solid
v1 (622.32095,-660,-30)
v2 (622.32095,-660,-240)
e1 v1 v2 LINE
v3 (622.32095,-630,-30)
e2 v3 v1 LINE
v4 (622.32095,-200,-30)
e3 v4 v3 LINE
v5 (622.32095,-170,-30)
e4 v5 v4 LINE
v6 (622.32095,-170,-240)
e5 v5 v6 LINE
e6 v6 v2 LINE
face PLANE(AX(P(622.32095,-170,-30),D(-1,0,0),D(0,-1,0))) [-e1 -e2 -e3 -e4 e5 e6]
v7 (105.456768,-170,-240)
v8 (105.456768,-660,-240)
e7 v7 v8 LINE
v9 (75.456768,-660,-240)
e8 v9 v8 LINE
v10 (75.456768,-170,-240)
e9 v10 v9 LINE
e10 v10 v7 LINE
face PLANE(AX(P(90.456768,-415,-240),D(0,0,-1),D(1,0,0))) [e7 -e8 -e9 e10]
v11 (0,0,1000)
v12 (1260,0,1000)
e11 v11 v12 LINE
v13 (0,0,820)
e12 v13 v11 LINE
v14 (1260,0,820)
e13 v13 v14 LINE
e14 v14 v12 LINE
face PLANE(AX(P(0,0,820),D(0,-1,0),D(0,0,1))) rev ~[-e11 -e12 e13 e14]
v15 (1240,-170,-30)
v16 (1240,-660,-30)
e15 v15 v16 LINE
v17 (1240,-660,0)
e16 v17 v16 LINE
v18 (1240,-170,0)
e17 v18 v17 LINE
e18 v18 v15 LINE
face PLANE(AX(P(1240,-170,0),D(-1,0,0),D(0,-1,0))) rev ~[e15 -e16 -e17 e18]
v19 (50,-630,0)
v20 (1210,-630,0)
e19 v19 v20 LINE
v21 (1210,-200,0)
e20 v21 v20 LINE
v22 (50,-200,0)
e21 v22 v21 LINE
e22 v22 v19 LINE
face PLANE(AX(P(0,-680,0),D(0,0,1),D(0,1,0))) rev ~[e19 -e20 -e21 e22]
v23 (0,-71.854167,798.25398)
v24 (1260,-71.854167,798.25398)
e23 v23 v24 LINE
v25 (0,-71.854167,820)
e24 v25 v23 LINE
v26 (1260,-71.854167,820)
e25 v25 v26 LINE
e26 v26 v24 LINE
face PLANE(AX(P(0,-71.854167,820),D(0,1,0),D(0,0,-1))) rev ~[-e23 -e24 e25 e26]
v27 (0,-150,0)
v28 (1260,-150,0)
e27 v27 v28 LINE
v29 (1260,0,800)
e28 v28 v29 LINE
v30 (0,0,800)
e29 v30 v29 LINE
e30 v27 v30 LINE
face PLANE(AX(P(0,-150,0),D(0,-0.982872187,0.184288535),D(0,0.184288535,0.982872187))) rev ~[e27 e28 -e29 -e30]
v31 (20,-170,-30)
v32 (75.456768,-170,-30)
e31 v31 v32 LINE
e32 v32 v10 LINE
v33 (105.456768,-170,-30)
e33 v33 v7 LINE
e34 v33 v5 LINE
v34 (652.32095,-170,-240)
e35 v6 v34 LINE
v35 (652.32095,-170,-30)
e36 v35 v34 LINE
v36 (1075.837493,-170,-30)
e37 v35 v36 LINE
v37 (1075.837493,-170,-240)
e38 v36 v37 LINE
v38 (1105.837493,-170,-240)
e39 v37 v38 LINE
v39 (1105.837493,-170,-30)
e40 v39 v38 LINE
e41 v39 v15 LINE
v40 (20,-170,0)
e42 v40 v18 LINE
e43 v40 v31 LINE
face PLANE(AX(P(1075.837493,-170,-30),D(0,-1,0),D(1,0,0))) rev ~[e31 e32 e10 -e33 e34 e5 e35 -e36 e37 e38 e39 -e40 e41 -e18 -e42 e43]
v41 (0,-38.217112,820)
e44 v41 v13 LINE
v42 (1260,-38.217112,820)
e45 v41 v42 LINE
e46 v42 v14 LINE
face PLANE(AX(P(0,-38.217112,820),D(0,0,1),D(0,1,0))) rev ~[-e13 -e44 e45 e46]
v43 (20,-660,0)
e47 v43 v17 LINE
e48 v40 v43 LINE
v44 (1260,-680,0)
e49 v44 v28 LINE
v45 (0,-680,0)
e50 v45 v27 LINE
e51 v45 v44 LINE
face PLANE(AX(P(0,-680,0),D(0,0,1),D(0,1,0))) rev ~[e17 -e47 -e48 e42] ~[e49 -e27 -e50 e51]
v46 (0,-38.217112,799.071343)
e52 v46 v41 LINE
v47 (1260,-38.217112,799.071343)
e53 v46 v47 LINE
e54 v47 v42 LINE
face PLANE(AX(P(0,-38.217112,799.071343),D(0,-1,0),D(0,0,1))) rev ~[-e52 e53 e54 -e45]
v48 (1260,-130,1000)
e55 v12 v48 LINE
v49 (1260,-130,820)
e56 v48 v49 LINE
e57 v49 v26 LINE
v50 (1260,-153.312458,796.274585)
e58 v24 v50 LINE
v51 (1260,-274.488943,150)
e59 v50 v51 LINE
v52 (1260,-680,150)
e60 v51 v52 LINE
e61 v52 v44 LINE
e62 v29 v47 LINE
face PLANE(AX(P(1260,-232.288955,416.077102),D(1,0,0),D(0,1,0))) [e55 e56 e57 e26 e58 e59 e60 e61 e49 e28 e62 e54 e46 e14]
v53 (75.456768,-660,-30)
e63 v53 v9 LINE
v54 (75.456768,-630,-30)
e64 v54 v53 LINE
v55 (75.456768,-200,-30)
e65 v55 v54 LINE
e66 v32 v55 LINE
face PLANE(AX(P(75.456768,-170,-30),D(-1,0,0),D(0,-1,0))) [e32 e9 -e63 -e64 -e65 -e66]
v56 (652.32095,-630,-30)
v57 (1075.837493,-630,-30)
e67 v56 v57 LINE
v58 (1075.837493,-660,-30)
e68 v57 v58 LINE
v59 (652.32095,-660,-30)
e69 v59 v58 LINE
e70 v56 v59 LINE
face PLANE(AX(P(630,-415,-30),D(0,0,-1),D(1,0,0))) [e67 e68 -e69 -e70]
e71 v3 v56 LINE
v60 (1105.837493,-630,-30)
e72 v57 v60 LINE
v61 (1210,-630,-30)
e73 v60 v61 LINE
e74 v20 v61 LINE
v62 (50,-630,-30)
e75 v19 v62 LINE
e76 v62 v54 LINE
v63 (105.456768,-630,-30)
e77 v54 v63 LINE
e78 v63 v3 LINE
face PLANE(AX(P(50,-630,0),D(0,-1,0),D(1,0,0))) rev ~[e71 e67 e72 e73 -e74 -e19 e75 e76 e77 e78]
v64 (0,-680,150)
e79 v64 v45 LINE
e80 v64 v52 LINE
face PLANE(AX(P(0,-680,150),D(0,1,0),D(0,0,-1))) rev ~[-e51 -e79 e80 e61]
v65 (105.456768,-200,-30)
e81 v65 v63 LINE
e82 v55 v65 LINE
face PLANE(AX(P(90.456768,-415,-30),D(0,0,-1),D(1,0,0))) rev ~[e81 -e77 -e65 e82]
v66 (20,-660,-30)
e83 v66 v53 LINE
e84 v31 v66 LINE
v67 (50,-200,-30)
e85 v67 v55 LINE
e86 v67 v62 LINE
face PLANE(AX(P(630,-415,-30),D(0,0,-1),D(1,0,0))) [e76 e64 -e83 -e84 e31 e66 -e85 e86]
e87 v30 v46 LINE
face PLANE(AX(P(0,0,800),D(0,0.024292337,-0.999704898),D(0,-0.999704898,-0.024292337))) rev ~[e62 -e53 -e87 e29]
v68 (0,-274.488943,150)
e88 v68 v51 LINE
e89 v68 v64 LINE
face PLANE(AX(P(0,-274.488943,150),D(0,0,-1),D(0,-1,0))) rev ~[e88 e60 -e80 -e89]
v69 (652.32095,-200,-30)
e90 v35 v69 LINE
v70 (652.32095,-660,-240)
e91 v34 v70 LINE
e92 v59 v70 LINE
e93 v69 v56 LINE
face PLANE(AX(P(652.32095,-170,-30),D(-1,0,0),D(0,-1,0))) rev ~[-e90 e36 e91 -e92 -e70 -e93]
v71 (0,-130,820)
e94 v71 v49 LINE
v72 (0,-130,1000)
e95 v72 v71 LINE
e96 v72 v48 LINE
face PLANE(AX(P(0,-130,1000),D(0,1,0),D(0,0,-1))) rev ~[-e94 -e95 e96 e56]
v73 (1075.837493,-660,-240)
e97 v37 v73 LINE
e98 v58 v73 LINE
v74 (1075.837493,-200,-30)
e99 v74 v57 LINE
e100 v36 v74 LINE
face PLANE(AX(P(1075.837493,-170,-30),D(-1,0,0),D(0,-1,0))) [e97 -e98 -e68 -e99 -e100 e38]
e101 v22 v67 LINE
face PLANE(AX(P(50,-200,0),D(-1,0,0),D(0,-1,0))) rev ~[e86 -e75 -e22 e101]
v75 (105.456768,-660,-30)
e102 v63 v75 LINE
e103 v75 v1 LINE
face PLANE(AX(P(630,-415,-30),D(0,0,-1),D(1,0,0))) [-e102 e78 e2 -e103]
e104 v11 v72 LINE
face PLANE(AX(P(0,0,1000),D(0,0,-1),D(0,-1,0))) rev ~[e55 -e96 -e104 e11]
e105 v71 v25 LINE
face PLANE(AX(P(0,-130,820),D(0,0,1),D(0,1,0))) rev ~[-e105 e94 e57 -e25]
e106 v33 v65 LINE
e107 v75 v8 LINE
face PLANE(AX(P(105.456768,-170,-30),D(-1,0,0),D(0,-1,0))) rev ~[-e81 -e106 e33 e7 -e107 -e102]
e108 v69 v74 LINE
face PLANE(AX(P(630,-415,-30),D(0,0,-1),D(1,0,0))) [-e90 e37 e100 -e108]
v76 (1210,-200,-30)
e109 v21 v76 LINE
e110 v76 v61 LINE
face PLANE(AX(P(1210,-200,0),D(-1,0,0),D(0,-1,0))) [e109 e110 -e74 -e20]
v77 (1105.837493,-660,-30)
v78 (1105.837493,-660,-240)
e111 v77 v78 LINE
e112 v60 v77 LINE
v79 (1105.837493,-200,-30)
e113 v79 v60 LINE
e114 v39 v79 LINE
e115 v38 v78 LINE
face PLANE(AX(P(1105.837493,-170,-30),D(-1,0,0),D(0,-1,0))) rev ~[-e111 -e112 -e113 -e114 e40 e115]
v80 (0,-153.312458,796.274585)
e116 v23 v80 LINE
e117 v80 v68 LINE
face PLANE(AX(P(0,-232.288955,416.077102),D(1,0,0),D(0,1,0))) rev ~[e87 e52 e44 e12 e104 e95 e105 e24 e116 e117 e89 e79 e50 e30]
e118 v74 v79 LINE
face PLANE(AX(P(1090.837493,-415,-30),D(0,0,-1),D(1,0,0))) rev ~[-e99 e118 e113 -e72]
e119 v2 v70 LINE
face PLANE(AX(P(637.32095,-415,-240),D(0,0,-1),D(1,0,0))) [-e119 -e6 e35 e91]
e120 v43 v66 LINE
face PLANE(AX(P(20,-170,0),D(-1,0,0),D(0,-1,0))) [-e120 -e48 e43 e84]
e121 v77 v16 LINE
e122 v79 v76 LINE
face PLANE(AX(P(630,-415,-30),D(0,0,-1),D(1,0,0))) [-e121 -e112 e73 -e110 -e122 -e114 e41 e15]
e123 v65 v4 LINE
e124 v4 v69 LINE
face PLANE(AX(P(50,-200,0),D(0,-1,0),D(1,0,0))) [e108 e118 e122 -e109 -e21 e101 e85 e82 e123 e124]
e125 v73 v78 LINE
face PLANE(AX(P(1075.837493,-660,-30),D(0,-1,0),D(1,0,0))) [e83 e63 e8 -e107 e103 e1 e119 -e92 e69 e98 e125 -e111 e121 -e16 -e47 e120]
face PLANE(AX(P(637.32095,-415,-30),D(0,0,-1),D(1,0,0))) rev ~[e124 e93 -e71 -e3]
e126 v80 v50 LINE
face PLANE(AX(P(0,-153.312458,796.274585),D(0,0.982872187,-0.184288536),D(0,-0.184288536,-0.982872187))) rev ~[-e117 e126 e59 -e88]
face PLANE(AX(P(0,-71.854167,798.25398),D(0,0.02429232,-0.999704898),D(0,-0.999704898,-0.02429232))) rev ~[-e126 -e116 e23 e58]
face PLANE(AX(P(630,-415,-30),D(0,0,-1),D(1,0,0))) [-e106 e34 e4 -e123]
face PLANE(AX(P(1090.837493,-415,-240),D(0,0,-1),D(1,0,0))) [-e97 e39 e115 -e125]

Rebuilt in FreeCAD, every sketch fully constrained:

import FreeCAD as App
import Part
import Sketcher


def add_polygon(sketch, points):
    """Adds a closed chain of lines whose ends are joined by coincident constraints."""
    first, n = sketch.GeometryCount, len(points)
    for a, b in zip(points, points[1:] + points[:1]):
        sketch.addGeometry(Part.LineSegment(App.Vector(*a, 0), App.Vector(*b, 0)), False)
    for i in range(n):
        sketch.addConstraint(Sketcher.Constraint("Coincident", first + i, 2, first + (i + 1) % n, 1))

doc = App.newDocument("Part")
body = doc.addObject("PartDesign::Body", "Body")

sketch1 = body.newObject("Sketcher::SketchObject", "Sketch")
sketch1.AttachmentSupport = (doc.getObject("YZ_Plane"), [""])
sketch1.MapMode = "FlatFace"
add_polygon(sketch1, [(-680, 0), (-150, 0), (0, 800), (-38, 799), (-38, 820), (0, 820), (0, 1000), (-130, 1000), (-130, 820), (-72, 820), (-72, 798), (-153, 796), (-274, 150), (-680, 150)])
sketch1.addConstraint([
    Sketcher.Constraint("Horizontal", 0),
    Sketcher.Constraint("Vertical", 3),
    Sketcher.Constraint("Horizontal", 4),
    Sketcher.Constraint("Vertical", 5),
    Sketcher.Constraint("Horizontal", 6),
    Sketcher.Constraint("Vertical", 7),
    Sketcher.Constraint("Horizontal", 8),
    Sketcher.Constraint("Vertical", 9),
    Sketcher.Constraint("Horizontal", 12),
    Sketcher.Constraint("Vertical", 13),
    Sketcher.Constraint("PointOnObject", 0, 2, -1),
    Sketcher.Constraint("PointOnObject", 1, 2, -2),
    Sketcher.Constraint("PointOnObject", 4, 2, -2),
    Sketcher.Constraint("Parallel", 2, 10),
    Sketcher.Constraint("Parallel", 1, 11),
    Sketcher.Constraint("Horizontal", 4, 2, 7, 2),
    Sketcher.Constraint("DistanceX", 0, 1, 0, 2, 530.0),
    Sketcher.Constraint("DistanceX", 6, 2, 6, 1, 130.0),
    Sketcher.Constraint("DistanceY", 5, 1, 5, 2, 180.0),
    Sketcher.Constraint("DistanceY", 13, 2, 13, 1, 150.0),
    Sketcher.Constraint("DistanceX", 0, 2, -1, 1, 150.0),
    Sketcher.Constraint("DistanceY", -1, 1, 1, 2, 800.0),
    Sketcher.Constraint("DistanceY", -1, 1, 3, 2, 820.0),
    Sketcher.Constraint("DistanceY", 9, 2, 9, 1, 21.74602),
    Sketcher.Constraint("Distance", 11, 657.536752),
    Sketcher.Constraint("DistanceX", 4, 1, 4, 2, 38.217112),
    Sketcher.Constraint("DistanceX", 8, 1, 8, 2, 58.145833),
    Sketcher.Constraint("DistanceX", 12, 2, 12, 1, 405.511057),
])
pad1 = body.newObject("PartDesign::Pad", "Pad")
pad1.Profile = sketch1
pad1.Length = 1260

sketch2 = body.newObject("Sketcher::SketchObject", "Sketch001")
sketch2.AttachmentSupport = (doc.getObject("XY_Plane"), [""])
sketch2.MapMode = "FlatFace"
add_polygon(sketch2, [(20, -660), (20, -170), (1240, -170), (1240, -660)])
add_polygon(sketch2, [(1210, -200), (50, -200), (50, -630), (1210, -630)])
sketch2.addConstraint([
    Sketcher.Constraint("Vertical", 0),
    Sketcher.Constraint("Horizontal", 1),
    Sketcher.Constraint("Vertical", 2),
    Sketcher.Constraint("Horizontal", 3),
    Sketcher.Constraint("Horizontal", 4),
    Sketcher.Constraint("Vertical", 5),
    Sketcher.Constraint("Horizontal", 6),
    Sketcher.Constraint("Vertical", 7),
    Sketcher.Constraint("DistanceX", 1, 1, 1, 2, 1220.0),
    Sketcher.Constraint("DistanceX", 4, 2, 4, 1, 1160.0),
    Sketcher.Constraint("DistanceY", 0, 1, 0, 2, 490.0),
    Sketcher.Constraint("DistanceY", 5, 2, 5, 1, 430.0),
    Sketcher.Constraint("DistanceX", -1, 1, 0, 2, 20.0),
    Sketcher.Constraint("DistanceY", 0, 2, -1, 1, 170.0),
    Sketcher.Constraint("DistanceX", -1, 1, 4, 2, 50.0),
    Sketcher.Constraint("DistanceY", 4, 2, -1, 1, 200.0),
])
pad2 = body.newObject("PartDesign::Pad", "Pad001")
pad2.Profile = sketch2
pad2.Length = 30
pad2.Reversed = True

sketch3 = body.newObject("Sketcher::SketchObject", "Sketch002")
sketch3.AttachmentSupport = (doc.getObject("XY_Plane"), [""])
sketch3.MapMode = "FlatFace"
sketch3.AttachmentOffset = App.Placement(App.Vector(0, 0, -30), App.Rotation())
add_polygon(sketch3, [(1076, -660), (1076, -170), (1106, -170), (1106, -660)])
add_polygon(sketch3, [(622, -660), (622, -170), (652, -170), (652, -660)])
add_polygon(sketch3, [(75, -660), (75, -170), (105, -170), (105, -660)])
sketch3.addConstraint([
    Sketcher.Constraint("Vertical", 0),
    Sketcher.Constraint("Horizontal", 1),
    Sketcher.Constraint("Vertical", 2),
    Sketcher.Constraint("Horizontal", 3),
    Sketcher.Constraint("Vertical", 4),
    Sketcher.Constraint("Horizontal", 5),
    Sketcher.Constraint("Vertical", 6),
    Sketcher.Constraint("Horizontal", 7),
    Sketcher.Constraint("Vertical", 8),
    Sketcher.Constraint("Horizontal", 9),
    Sketcher.Constraint("Vertical", 10),
    Sketcher.Constraint("Horizontal", 11),
    Sketcher.Constraint("Horizontal", 1, 2, 4, 2),
    Sketcher.Constraint("Horizontal", 3, 2, 6, 2),
    Sketcher.Constraint("Horizontal", 5, 2, 8, 2),
    Sketcher.Constraint("Horizontal", 7, 2, 10, 2),
    Sketcher.Constraint("Equal", 3, 5),
    Sketcher.Constraint("Equal", 7, 9),
    Sketcher.Constraint("DistanceX", 1, 1, 1, 2, 30.0),
    Sketcher.Constraint("DistanceY", 0, 1, 0, 2, 490.0),
    Sketcher.Constraint("DistanceY", 0, 2, -1, 1, 170.0),
    Sketcher.Constraint("DistanceX", -1, 1, 4, 2, 622.32095),
    Sketcher.Constraint("DistanceX", 8, 2, 4, 2, 546.864182),
    Sketcher.Constraint("DistanceX", -1, 1, 0, 2, 1075.837493),
])
pad3 = body.newObject("PartDesign::Pad", "Pad002")
pad3.Profile = sketch3
pad3.Length = 210
pad3.Reversed = True

doc.recompute()
